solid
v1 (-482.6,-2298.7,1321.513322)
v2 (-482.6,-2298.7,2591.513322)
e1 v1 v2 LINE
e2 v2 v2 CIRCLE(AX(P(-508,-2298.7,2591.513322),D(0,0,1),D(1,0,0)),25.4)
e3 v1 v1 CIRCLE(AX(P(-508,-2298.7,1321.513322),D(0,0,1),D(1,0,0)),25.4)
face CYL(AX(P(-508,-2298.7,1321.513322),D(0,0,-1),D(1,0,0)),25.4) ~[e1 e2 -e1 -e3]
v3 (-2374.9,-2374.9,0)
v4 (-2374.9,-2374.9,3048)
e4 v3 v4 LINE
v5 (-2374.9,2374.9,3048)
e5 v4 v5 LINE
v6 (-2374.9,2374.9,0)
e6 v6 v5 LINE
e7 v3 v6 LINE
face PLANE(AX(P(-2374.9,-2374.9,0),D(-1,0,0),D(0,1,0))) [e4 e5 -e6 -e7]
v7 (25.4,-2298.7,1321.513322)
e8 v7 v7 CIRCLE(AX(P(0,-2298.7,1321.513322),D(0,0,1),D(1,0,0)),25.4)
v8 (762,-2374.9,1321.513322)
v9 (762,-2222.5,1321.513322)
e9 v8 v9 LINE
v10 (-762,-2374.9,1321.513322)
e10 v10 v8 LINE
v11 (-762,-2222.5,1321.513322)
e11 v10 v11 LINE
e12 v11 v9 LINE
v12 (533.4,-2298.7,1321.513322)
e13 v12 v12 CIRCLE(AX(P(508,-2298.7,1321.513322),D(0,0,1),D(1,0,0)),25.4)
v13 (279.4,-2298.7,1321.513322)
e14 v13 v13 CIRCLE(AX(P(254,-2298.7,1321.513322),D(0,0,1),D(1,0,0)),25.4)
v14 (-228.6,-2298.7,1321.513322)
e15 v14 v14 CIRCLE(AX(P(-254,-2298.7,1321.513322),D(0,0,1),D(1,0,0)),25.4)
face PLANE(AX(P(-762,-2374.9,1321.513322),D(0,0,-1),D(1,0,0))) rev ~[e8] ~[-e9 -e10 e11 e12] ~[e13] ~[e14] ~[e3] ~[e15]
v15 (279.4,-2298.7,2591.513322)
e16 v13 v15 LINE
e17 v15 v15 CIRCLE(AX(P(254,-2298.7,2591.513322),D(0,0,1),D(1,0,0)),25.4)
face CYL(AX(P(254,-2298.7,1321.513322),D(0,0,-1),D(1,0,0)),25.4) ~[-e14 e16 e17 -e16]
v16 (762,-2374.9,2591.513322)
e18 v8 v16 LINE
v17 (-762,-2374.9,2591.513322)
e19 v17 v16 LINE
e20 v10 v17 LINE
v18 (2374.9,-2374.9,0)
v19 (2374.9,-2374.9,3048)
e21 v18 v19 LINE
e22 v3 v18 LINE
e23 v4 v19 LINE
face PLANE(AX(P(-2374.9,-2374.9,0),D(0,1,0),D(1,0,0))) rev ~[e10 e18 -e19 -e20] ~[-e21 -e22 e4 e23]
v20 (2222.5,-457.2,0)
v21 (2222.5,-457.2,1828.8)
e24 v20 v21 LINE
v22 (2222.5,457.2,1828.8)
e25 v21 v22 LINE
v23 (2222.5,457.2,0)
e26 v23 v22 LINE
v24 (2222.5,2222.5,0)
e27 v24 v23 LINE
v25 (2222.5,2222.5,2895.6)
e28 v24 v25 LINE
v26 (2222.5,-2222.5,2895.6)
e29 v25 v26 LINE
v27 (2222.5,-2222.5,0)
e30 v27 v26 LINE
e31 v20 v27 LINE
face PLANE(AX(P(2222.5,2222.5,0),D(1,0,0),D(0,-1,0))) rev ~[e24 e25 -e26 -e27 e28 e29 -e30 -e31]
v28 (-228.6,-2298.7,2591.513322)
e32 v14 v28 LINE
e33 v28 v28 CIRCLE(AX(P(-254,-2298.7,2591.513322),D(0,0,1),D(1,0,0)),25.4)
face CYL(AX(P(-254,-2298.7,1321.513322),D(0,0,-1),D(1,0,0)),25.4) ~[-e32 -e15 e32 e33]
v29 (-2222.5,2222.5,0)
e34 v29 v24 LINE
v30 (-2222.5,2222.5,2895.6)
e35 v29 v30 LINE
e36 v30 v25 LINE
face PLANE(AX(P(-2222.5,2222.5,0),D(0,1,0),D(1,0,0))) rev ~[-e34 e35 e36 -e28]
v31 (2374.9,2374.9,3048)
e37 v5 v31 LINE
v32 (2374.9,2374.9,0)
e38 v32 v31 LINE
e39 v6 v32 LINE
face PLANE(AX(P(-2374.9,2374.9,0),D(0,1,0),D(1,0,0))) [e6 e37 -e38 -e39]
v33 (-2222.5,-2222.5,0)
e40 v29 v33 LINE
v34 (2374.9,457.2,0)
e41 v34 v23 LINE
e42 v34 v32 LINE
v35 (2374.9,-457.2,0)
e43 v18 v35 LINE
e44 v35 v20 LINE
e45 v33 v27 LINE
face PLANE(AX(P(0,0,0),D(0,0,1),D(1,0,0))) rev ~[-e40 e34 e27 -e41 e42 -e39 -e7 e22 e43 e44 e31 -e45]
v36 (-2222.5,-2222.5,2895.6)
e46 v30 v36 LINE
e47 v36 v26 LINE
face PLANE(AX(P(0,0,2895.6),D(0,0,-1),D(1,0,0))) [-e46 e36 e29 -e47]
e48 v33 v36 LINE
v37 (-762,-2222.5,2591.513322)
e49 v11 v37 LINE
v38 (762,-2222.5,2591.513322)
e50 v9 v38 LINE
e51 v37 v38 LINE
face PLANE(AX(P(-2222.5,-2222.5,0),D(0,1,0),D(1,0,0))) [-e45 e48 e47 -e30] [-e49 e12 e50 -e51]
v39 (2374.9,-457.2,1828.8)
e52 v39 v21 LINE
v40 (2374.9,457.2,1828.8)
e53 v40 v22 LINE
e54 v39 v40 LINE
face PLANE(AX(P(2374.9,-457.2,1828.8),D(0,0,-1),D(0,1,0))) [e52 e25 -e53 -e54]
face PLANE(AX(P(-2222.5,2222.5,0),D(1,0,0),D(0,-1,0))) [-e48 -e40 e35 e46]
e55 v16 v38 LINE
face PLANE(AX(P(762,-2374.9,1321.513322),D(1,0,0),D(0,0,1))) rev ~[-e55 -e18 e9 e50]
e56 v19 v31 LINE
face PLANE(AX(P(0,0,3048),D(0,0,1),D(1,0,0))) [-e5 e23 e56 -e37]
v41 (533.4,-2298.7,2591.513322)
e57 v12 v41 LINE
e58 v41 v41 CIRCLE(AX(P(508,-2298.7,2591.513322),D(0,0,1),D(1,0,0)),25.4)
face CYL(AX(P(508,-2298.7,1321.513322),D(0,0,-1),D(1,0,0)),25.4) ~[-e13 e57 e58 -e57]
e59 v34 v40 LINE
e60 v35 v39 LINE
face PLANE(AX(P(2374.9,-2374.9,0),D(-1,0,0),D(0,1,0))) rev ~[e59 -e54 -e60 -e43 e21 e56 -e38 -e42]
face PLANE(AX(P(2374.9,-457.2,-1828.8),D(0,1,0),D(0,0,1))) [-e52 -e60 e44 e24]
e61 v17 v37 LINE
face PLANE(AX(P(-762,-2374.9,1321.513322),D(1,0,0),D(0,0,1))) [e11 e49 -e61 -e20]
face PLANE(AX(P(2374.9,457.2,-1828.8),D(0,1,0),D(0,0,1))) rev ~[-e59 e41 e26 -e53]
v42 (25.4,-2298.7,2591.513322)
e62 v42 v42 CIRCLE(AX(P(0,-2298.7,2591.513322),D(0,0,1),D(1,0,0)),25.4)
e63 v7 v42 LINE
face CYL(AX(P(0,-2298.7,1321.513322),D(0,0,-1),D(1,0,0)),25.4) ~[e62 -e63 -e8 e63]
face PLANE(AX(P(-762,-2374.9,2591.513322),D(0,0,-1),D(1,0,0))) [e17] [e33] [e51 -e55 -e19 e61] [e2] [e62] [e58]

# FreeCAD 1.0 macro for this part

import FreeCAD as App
import Part
import Sketcher
from FreeCAD import Vector
Q = App.Units.Quantity

doc = App.newDocument("Part")
body = doc.addObject("PartDesign::Body", "Body")

# Sketch on XY plane
sketch1 = body.newObject("Sketcher::SketchObject", "Sketch")
sketch1.AttachmentSupport = (doc.getObject("XY_Plane"), [""])
sketch1.MapMode = "FlatFace"
sketch1.addGeometry([
    Part.LineSegment(Vector(-2374.9, 2374.9, 0), Vector(-2374.9, -2374.9, 0)),
    Part.LineSegment(Vector(-2374.9, -2374.9, 0), Vector(2374.9, -2374.9, 0)),
    Part.LineSegment(Vector(2374.9, -2374.9, 0), Vector(2374.9, 2374.9, 0)),
    Part.LineSegment(Vector(2374.9, 2374.9, 0), Vector(-2374.9, 2374.9, 0)),
], False)
sketch1.addConstraint([
    Sketcher.Constraint("Coincident", 0, 2, 1, 1),
    Sketcher.Constraint("Coincident", 1, 2, 2, 1),
    Sketcher.Constraint("Coincident", 2, 2, 3, 1),
    Sketcher.Constraint("Coincident", 3, 2, 0, 1),
    Sketcher.Constraint("Vertical", 0),
    Sketcher.Constraint("Horizontal", 1),
    Sketcher.Constraint("Vertical", 2),
    Sketcher.Constraint("Horizontal", 3),
    Sketcher.Constraint("Symmetric", 0, 2, 2, 2, -1, 1),
    Sketcher.Constraint("Equal", 3, 0),
    Sketcher.Constraint("DistanceX", 1, 1, 1, 2, Q("187 in")),
])
pad1 = body.newObject("PartDesign::Pad", "Pad")
pad1.Profile = sketch1
pad1.Length = Q("120 in")

# Sketch on XZ plane
sketch2 = body.newObject("Sketcher::SketchObject", "Sketch001")
sketch2.AttachmentSupport = (doc.getObject("XZ_Plane"), [""])
sketch2.MapMode = "FlatFace"
sketch2.AttachmentOffset = App.Placement(Vector(0, 0, 93.5 * 25.4), App.Rotation())
sketch2.addGeometry([
    Part.LineSegment(Vector(-762, 2591.513322, 0), Vector(-762, 1321.513322, 0)),
    Part.LineSegment(Vector(-762, 1321.513322, 0), Vector(762, 1321.513322, 0)),
    Part.LineSegment(Vector(762, 1321.513322, 0), Vector(762, 2591.513322, 0)),
    Part.LineSegment(Vector(762, 2591.513322, 0), Vector(-762, 2591.513322, 0)),
], False)
sketch2.addConstraint([
    Sketcher.Constraint("Coincident", 0, 2, 1, 1),
    Sketcher.Constraint("Coincident", 1, 2, 2, 1),
    Sketcher.Constraint("Coincident", 2, 2, 3, 1),
    Sketcher.Constraint("Coincident", 3, 2, 0, 1),
    Sketcher.Constraint("Vertical", 0),
    Sketcher.Constraint("Horizontal", 1),
    Sketcher.Constraint("Vertical", 2),
    Sketcher.Constraint("Horizontal", 3),
    Sketcher.Constraint("DistanceX", 1, 1, 1, 2, Q("60 in")),
    Sketcher.Constraint("DistanceY", 0, 2, 0, 1, Q("50 in")),
    Sketcher.Constraint("DistanceX", 0, 2, -1, 1, Q("30 in")),
    Sketcher.Constraint("DistanceY", -1, 1, 0, 2, 1321.513322),
])
pocket1 = body.newObject("PartDesign::Pocket", "Pocket")
pocket1.Profile = sketch2
pocket1.Length = Q("6 in")

# Sketch on XY plane
sketch3 = body.newObject("Sketcher::SketchObject", "Sketch002")
sketch3.AttachmentSupport = (doc.getObject("XY_Plane"), [""])
sketch3.MapMode = "FlatFace"
sketch3.addGeometry([
    Part.LineSegment(Vector(-2222.5, -2222.5, 0), Vector(-2222.5, 2222.5, 0)),
    Part.LineSegment(Vector(-2222.5, 2222.5, 0), Vector(2222.5, 2222.5, 0)),
    Part.LineSegment(Vector(2222.5, 2222.5, 0), Vector(2222.5, -2222.5, 0)),
    Part.LineSegment(Vector(2222.5, -2222.5, 0), Vector(-2222.5, -2222.5, 0)),
], False)
sketch3.addConstraint([
    Sketcher.Constraint("Coincident", 0, 2, 1, 1),
    Sketcher.Constraint("Coincident", 1, 2, 2, 1),
    Sketcher.Constraint("Coincident", 2, 2, 3, 1),
    Sketcher.Constraint("Coincident", 3, 2, 0, 1),
    Sketcher.Constraint("Vertical", 0),
    Sketcher.Constraint("Horizontal", 1),
    Sketcher.Constraint("Vertical", 2),
    Sketcher.Constraint("Horizontal", 3),
    Sketcher.Constraint("Symmetric", 0, 2, 2, 2, -1, 1),
    Sketcher.Constraint("Equal", 3, 0),
    Sketcher.Constraint("DistanceX", 1, 1, 1, 2, Q("175 in")),
])
pocket2 = body.newObject("PartDesign::Pocket", "Pocket001")
pocket2.Profile = sketch3
pocket2.Length = Q("114 in")
pocket2.Reversed = True

# Sketch on XY plane
sketch4 = body.newObject("Sketcher::SketchObject", "Sketch003")
sketch4.AttachmentSupport = (doc.getObject("XY_Plane"), [""])
sketch4.MapMode = "FlatFace"
sketch4.AttachmentOffset = App.Placement(Vector(0, 0, 1321.513322), App.Rotation())
sketch4.addGeometry([
    Part.Circle(Vector(-508, -2298.7, 0), Vector(0, 0, 1), 25.4),  # 0
    Part.Circle(Vector(0, -2298.7, 0), Vector(0, 0, 1), 25.4),  # 1
    Part.Circle(Vector(508, -2298.7, 0), Vector(0, 0, 1), 25.4),  # 2
    Part.Circle(Vector(-254, -2298.7, 0), Vector(0, 0, 1), 25.4),  # 3
    Part.Circle(Vector(254, -2298.7, 0), Vector(0, 0, 1), 25.4),  # 4
], False)
sketch4.addConstraint([
    Sketcher.Constraint("Equal", 0, 1),
    Sketcher.Constraint("Equal", 1, 2),
    Sketcher.Constraint("Equal", 2, 3),
    Sketcher.Constraint("Equal", 3, 4),
    Sketcher.Constraint("Symmetric", 0, 3, 2, 3, -2),
    Sketcher.Constraint("Symmetric", 3, 3, 4, 3, -2),
    Sketcher.Constraint("PointOnObject", 1, 3, -2),
    Sketcher.Constraint("Horizontal", 0, 3, 1, 3),
    Sketcher.Constraint("Horizontal", 2, 3, 3, 3),
    Sketcher.Constraint("Diameter", 0, Q("2 in")),
    Sketcher.Constraint("DistanceX", 0, 3, -1, 1, Q("20 in")),
    Sketcher.Constraint("DistanceX", 3, 3, -1, 1, Q("10 in")),
    Sketcher.Constraint("DistanceY", 0, 3, -1, 1, Q("90.5 in")),
])
pad2 = body.newObject("PartDesign::Pad", "Pad001")
pad2.Profile = sketch4
pad2.Length = Q("50 in")

# Sketch on YZ plane
sketch5 = body.newObject("Sketcher::SketchObject", "Sketch004")
sketch5.AttachmentSupport = (doc.getObject("YZ_Plane"), [""])
sketch5.MapMode = "FlatFace"
sketch5.AttachmentOffset = App.Placement(Vector(0, 0, 93.5 * 25.4), App.Rotation())
sketch5.addGeometry([
    Part.LineSegment(Vector(-457.2, 1828.8, 0), Vector(-457.2, -1828.8, 0)),
    Part.LineSegment(Vector(-457.2, -1828.8, 0), Vector(457.2, -1828.8, 0)),
    Part.LineSegment(Vector(457.2, -1828.8, 0), Vector(457.2, 1828.8, 0)),
    Part.LineSegment(Vector(457.2, 1828.8, 0), Vector(-457.2, 1828.8, 0)),
], False)
sketch5.addConstraint([
    Sketcher.Constraint("Coincident", 0, 2, 1, 1),
    Sketcher.Constraint("Coincident", 1, 2, 2, 1),
    Sketcher.Constraint("Coincident", 2, 2, 3, 1),
    Sketcher.Constraint("Coincident", 3, 2, 0, 1),
    Sketcher.Constraint("Vertical", 0),
    Sketcher.Constraint("Horizontal", 1),
    Sketcher.Constraint("Vertical", 2),
    Sketcher.Constraint("Horizontal", 3),
    Sketcher.Constraint("Symmetric", 0, 2, 2, 2, -1, 1),
    Sketcher.Constraint("DistanceX", 1, 1, 1, 2, Q("36 in")),
    Sketcher.Constraint("DistanceY", 0, 2, 0, 1, Q("144 in")),
])
pocket3 = body.newObject("PartDesign::Pocket", "Pocket002")
pocket3.Profile = sketch5
pocket3.Length = Q("6 in")

doc.recompute()
